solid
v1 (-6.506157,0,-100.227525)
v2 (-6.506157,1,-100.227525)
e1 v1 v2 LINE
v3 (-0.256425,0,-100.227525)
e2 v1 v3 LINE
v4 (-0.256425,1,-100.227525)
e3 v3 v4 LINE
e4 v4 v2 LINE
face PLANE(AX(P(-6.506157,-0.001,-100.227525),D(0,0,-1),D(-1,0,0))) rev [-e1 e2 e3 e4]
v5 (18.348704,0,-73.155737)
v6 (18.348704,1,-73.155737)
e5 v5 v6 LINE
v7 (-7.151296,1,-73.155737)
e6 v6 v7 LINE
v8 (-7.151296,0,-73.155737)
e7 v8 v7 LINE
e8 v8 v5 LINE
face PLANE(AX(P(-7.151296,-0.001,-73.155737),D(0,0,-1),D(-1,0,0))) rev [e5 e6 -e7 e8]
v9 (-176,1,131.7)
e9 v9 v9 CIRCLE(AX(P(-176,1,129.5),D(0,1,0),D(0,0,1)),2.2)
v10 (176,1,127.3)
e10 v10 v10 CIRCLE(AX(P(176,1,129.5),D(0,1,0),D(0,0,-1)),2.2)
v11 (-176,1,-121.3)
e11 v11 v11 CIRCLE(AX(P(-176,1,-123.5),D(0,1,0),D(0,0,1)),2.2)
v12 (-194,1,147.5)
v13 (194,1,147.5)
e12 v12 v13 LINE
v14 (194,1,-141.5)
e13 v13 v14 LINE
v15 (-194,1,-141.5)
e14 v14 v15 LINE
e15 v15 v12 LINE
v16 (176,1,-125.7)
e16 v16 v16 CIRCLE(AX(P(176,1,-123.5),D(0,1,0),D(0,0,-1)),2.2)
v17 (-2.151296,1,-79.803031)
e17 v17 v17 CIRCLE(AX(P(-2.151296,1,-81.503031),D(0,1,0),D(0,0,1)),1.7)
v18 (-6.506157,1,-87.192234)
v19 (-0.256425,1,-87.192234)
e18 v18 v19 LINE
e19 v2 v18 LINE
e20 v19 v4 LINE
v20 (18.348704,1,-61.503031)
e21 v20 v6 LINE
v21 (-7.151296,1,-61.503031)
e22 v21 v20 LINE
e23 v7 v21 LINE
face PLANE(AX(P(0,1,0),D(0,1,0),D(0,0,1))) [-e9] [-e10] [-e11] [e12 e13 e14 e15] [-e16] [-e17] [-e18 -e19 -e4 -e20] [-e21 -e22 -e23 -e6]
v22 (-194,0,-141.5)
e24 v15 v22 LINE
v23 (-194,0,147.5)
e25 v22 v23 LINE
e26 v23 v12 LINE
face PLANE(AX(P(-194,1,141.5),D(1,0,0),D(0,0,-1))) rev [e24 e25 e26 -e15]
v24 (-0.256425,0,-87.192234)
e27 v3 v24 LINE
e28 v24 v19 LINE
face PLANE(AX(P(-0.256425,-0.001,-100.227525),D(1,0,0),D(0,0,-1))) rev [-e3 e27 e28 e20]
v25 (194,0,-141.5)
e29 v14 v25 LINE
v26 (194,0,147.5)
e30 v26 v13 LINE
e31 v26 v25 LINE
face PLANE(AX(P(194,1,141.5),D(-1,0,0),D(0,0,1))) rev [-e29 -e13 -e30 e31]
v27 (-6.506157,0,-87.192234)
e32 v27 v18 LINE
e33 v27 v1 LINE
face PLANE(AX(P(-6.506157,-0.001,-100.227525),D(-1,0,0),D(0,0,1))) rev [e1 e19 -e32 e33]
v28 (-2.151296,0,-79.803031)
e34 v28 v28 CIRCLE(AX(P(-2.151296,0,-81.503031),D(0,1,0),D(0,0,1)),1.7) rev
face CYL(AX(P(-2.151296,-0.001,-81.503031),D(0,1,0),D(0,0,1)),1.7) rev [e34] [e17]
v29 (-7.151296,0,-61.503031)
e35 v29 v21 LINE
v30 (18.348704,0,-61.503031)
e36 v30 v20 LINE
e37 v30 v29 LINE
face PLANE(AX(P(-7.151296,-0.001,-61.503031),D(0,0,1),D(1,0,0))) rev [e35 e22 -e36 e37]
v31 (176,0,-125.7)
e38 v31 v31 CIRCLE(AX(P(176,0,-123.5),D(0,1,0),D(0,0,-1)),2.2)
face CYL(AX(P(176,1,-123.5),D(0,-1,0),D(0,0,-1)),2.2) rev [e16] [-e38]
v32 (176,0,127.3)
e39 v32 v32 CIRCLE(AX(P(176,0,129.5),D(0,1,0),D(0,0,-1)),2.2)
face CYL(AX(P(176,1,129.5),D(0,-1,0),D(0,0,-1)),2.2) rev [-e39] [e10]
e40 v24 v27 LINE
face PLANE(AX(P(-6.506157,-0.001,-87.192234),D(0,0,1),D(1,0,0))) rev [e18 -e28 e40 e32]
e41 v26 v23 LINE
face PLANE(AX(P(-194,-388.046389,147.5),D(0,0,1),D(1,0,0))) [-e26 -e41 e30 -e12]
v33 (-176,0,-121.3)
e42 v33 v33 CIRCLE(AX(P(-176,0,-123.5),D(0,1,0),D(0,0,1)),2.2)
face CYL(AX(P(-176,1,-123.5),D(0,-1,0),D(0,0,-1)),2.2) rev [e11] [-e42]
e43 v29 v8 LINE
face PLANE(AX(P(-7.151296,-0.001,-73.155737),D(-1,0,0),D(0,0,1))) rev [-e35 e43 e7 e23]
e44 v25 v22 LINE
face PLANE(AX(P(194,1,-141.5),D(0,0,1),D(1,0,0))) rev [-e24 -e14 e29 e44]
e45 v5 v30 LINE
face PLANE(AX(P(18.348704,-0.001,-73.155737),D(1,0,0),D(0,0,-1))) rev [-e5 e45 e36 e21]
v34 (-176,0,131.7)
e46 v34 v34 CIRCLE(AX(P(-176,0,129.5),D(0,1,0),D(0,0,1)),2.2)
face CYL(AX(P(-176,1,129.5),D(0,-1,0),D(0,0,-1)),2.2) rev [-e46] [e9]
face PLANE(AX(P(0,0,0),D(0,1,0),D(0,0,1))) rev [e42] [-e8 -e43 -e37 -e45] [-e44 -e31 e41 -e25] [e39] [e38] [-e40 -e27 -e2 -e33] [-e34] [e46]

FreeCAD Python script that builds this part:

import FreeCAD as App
import Part
import Sketcher

V = App.Vector
Q = App.Units.Quantity

doc = App.newDocument("Part")
body = doc.addObject("PartDesign::Body", "Body")

# Sketch on XZ plane
sketch1 = body.newObject("Sketcher::SketchObject", "Sketch")
sketch1.AttachmentSupport = (doc.getObject("XZ_Plane"), [""])
sketch1.MapMode = "FlatFace"
sketch1.addGeometry([
    Part.LineSegment(V(-194, -141.5, 0), V(-194, 141.5, 0)),  # 0
    Part.LineSegment(V(-194, 141.5, 0), V(194, 141.5, 0)),  # 1
    Part.LineSegment(V(194, 141.5, 0), V(194, -141.5, 0)),  # 2
    Part.LineSegment(V(194, -141.5, 0), V(-194, -141.5, 0)),  # 3
    Part.Circle(V(-176, 129.5, 0), V(0, 0, 1), 2.2),  # 4
    Part.Circle(V(176, 129.5, 0), V(0, 0, 1), 2.2),  # 5
    Part.Circle(V(-176, -123.5, 0), V(0, 0, 1), 2.2),  # 6
    Part.Circle(V(176, -123.5, 0), V(0, 0, 1), 2.2),  # 7
], False)
sketch1.addConstraint([
    Sketcher.Constraint("Coincident", 0, 2, 1, 1),
    Sketcher.Constraint("Coincident", 1, 2, 2, 1),
    Sketcher.Constraint("Coincident", 2, 2, 3, 1),
    Sketcher.Constraint("Coincident", 3, 2, 0, 1),
    Sketcher.Constraint("Vertical", 0),
    Sketcher.Constraint("Horizontal", 1),
    Sketcher.Constraint("Vertical", 2),
    Sketcher.Constraint("Horizontal", 3),
    Sketcher.Constraint("Equal", 4, 5),
    Sketcher.Constraint("Equal", 5, 6),
    Sketcher.Constraint("Equal", 6, 7),
    Sketcher.Constraint("Symmetric", 0, 2, 2, 2, -1, 1),
    Sketcher.Constraint("Symmetric", 4, 3, 5, 3, -2),
    Sketcher.Constraint("Symmetric", 6, 3, 7, 3, -2),
    Sketcher.Constraint("Vertical", 4, 3, 6, 3),
    Sketcher.Constraint("Diameter", 4, Q("4.4 mm")),
    Sketcher.Constraint("DistanceX", 1, 1, 1, 2, Q("388 mm")),
    Sketcher.Constraint("DistanceY", 0, 1, 0, 2, Q("283 mm")),
    Sketcher.Constraint("DistanceX", 4, 3, -1, 1, Q("176 mm")),
    Sketcher.Constraint("DistanceY", 6, 3, 4, 3, Q("253 mm")),
    Sketcher.Constraint("DistanceY", 4, 3, 0, 2, Q("12 mm")),
])
pad1 = body.newObject("PartDesign::Pad", "Pad")
pad1.Profile = sketch1
pad1.Length = 1
pad1.Reversed = True

# Sketch on XZ plane
sketch2 = body.newObject("Sketcher::SketchObject", "Sketch001")
sketch2.AttachmentSupport = (doc.getObject("XZ_Plane"), [""])
sketch2.MapMode = "FlatFace"
sketch2.AttachmentOffset = App.Placement(V(0, 0, -1), App.Rotation())
sketch2.addGeometry([
    Part.LineSegment(V(-194, 141.5, 0), V(-194, 147.5, 0)),
    Part.LineSegment(V(-194, 147.5, 0), V(194, 147.5, 0)),
    Part.LineSegment(V(194, 147.5, 0), V(194, 141.5, 0)),
    Part.LineSegment(V(194, 141.5, 0), V(-194, 141.5, 0)),
], False)
sketch2.addConstraint([
    Sketcher.Constraint("Coincident", 0, 2, 1, 1),
    Sketcher.Constraint("Coincident", 1, 2, 2, 1),
    Sketcher.Constraint("Coincident", 2, 2, 3, 1),
    Sketcher.Constraint("Coincident", 3, 2, 0, 1),
    Sketcher.Constraint("Vertical", 0),
    Sketcher.Constraint("Horizontal", 1),
    Sketcher.Constraint("Vertical", 2),
    Sketcher.Constraint("Horizontal", 3),
    Sketcher.Constraint("DistanceX", 1, 1, 1, 2, Q("388 mm")),
    Sketcher.Constraint("DistanceY", 0, 1, 0, 2, Q("6 mm")),
    Sketcher.Constraint("DistanceX", 0, 2, -1, 1, Q("194 mm")),
    Sketcher.Constraint("DistanceY", -1, 1, 0, 2, Q("147.5 mm")),
])
pad2 = body.newObject("PartDesign::Pad", "Pad001")
pad2.Profile = sketch2
pad2.Length = 1

# Sketch on XZ plane
sketch3 = body.newObject("Sketcher::SketchObject", "Sketch002")
sketch3.AttachmentSupport = (doc.getObject("XZ_Plane"), [""])
sketch3.MapMode = "FlatFace"
sketch3.AttachmentOffset = App.Placement(V(0, 0, -1), App.Rotation())
sketch3.addGeometry(Part.Circle(V(-2.151296, -81.503031, 0), V(0, 0, 1), 1.7), False)
sketch3.addConstraint([
    Sketcher.Constraint("Diameter", 0, Q("3.4 mm")),
    Sketcher.Constraint("DistanceY", 0, 3, -1, 1, Q("81.503031 mm")),
    Sketcher.Constraint("DistanceX", 0, 3, -1, 1, Q("2.151296 mm")),
])
pocket1 = body.newObject("PartDesign::Pocket", "Pocket")
pocket1.Profile = sketch3
pocket1.Type = "UpToFirst"
pocket1.Reversed = True

# Sketch on XZ plane
sketch4 = body.newObject("Sketcher::SketchObject", "Sketch003")
sketch4.AttachmentSupport = (doc.getObject("XZ_Plane"), [""])
sketch4.MapMode = "FlatFace"
sketch4.AttachmentOffset = App.Placement(V(0, 0, -1), App.Rotation())
sketch4.addGeometry([
    Part.LineSegment(V(-6.506157, -100.227525, 0), V(-6.506157, -87.192234, 0)),
    Part.LineSegment(V(-6.506157, -87.192234, 0), V(-0.256425, -87.192234, 0)),
    Part.LineSegment(V(-0.256425, -87.192234, 0), V(-0.256425, -100.227525, 0)),
    Part.LineSegment(V(-0.256425, -100.227525, 0), V(-6.506157, -100.227525, 0)),
], False)
sketch4.addConstraint([
    Sketcher.Constraint("Coincident", 0, 2, 1, 1),
    Sketcher.Constraint("Coincident", 1, 2, 2, 1),
    Sketcher.Constraint("Coincident", 2, 2, 3, 1),
    Sketcher.Constraint("Coincident", 3, 2, 0, 1),
    Sketcher.Constraint("Vertical", 0),
    Sketcher.Constraint("Horizontal", 1),
    Sketcher.Constraint("Vertical", 2),
    Sketcher.Constraint("Horizontal", 3),
    Sketcher.Constraint("DistanceY", 0, 1, 0, 2, Q("13.035291 mm")),
    Sketcher.Constraint("DistanceX", 1, 1, 1, 2, Q("6.249733 mm")),
    Sketcher.Constraint("DistanceX", 0, 2, -1, 1, Q("6.506157 mm")),
    Sketcher.Constraint("DistanceY", 0, 2, -1, 1, Q("87.192234 mm")),
])
pocket2 = body.newObject("PartDesign::Pocket", "Pocket001")
pocket2.Profile = sketch4
pocket2.Type = "UpToFirst"
pocket2.Reversed = True

# Sketch on XZ plane
sketch5 = body.newObject("Sketcher::SketchObject", "Sketch004")
sketch5.AttachmentSupport = (doc.getObject("XZ_Plane"), [""])
sketch5.MapMode = "FlatFace"
sketch5.AttachmentOffset = App.Placement(V(0, 0, -1), App.Rotation())
sketch5.addGeometry([
    Part.LineSegment(V(-7.151296, -73.155737, 0), V(-7.151296, -61.503031, 0)),
    Part.LineSegment(V(-7.151296, -61.503031, 0), V(18.348704, -61.503031, 0)),
    Part.LineSegment(V(18.348704, -61.503031, 0), V(18.348704, -73.155737, 0)),
    Part.LineSegment(V(18.348704, -73.155737, 0), V(-7.151296, -73.155737, 0)),
], False)
sketch5.addConstraint([
    Sketcher.Constraint("Coincident", 0, 2, 1, 1),
    Sketcher.Constraint("Coincident", 1, 2, 2, 1),
    Sketcher.Constraint("Coincident", 2, 2, 3, 1),
    Sketcher.Constraint("Coincident", 3, 2, 0, 1),
    Sketcher.Constraint("Vertical", 0),
    Sketcher.Constraint("Horizontal", 1),
    Sketcher.Constraint("Vertical", 2),
    Sketcher.Constraint("Horizontal", 3),
    Sketcher.Constraint("DistanceX", 1, 1, 1, 2, Q("25.5 mm")),
    Sketcher.Constraint("DistanceY", 0, 1, 0, 2, Q("11.652706 mm")),
    Sketcher.Constraint("DistanceY", 0, 2, -1, 1, Q("61.503031 mm")),
    Sketcher.Constraint("DistanceX", 0, 2, -1, 1, Q("7.151296 mm")),
])
pocket3 = body.newObject("PartDesign::Pocket", "Pocket002")
pocket3.Profile = sketch5
pocket3.Type = "UpToFirst"
pocket3.Reversed = True

doc.recompute()
